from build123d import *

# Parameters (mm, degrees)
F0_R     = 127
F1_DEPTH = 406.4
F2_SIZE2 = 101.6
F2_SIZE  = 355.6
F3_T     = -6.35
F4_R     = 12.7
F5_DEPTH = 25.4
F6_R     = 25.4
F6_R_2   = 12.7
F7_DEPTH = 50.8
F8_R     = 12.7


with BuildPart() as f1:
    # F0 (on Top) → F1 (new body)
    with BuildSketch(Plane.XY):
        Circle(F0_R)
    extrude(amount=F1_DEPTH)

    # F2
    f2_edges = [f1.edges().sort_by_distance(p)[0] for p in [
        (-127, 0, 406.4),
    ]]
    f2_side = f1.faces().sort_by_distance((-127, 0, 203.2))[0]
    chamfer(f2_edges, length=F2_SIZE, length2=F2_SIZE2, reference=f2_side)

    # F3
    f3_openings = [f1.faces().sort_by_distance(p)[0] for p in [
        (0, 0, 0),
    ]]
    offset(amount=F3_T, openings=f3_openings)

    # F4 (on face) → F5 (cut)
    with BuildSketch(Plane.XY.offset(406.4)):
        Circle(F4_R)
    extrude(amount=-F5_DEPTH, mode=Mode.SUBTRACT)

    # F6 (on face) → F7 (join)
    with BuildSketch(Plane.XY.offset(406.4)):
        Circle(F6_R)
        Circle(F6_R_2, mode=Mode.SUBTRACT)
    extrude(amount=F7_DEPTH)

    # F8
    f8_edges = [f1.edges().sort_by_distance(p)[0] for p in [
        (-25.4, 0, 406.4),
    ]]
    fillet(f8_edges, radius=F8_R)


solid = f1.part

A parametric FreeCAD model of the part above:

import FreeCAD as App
import Part
import Sketcher

V = App.Vector
Q = App.Units.Quantity


def edges_at(feature, points):
    """Names of the edges that pass closest to the given points."""
    edges = feature.Shape.Edges
    near = lambda p: min(range(len(edges)), key=lambda i: edges[i].distToShape(Part.Vertex(*p))[0])
    return sorted({f"Edge{near(p) + 1}" for p in points})


def faces_at(feature, points):
    """Names of the faces that lie closest to the given points."""
    faces = feature.Shape.Faces
    near = lambda p: min(range(len(faces)), key=lambda i: faces[i].distToShape(Part.Vertex(*p))[0])
    return sorted({f"Face{near(p) + 1}" for p in points})

doc = App.newDocument("Part")
body = doc.addObject("PartDesign::Body", "Body")

# Sketch on XY plane
sketch1 = body.newObject("Sketcher::SketchObject", "Sketch")
sketch1.AttachmentSupport = (doc.getObject("XY_Plane"), [""])
sketch1.MapMode = "FlatFace"
sketch1.addGeometry(Part.Circle(V(0, 0, 0), V(0, 0, 1), 127), False)
sketch1.addConstraint(Sketcher.Constraint("Coincident", 0, 3, -1, 1))
sketch1.addConstraint(Sketcher.Constraint("Diameter", 0, Q("10 in")))
pad1 = body.newObject("PartDesign::Pad", "Pad")
pad1.Profile = sketch1
pad1.Length = Q("16 in")
doc.recompute()

chamfer = body.newObject("PartDesign::Chamfer", "Chamfer")
chamfer.Base = (pad1, edges_at(pad1, [(-127, 0, 406.4)]))
chamfer.ChamferType = "Two distances"
chamfer.Size = Q("14 in")
chamfer.Size2 = Q("4 in")
doc.recompute()

thickness = body.newObject("PartDesign::Thickness", "Thickness")
thickness.Base = (chamfer, faces_at(chamfer, [(0, 0, 0)]))
thickness.Value = Q("0.25 in")
thickness.Reversed = True
thickness.Join = "Arc"

# Sketch on XY plane
sketch2 = body.newObject("Sketcher::SketchObject", "Sketch001")
sketch2.AttachmentSupport = (doc.getObject("XY_Plane"), [""])
sketch2.MapMode = "FlatFace"
sketch2.AttachmentOffset = App.Placement(V(0, 0, 16 * 25.4), App.Rotation())
sketch2.addGeometry(Part.Circle(V(0, 0, 0), V(0, 0, 1), 13), False)
sketch2.addConstraint(Sketcher.Constraint("Coincident", 0, 3, -1, 1))
sketch2.addConstraint(Sketcher.Constraint("Diameter", 0, Q("1 in")))
pocket1 = body.newObject("PartDesign::Pocket", "Pocket")
pocket1.Profile = sketch2
pocket1.Length = Q("1 in")

# Sketch on XY plane
sketch3 = body.newObject("Sketcher::SketchObject", "Sketch002")
sketch3.AttachmentSupport = (doc.getObject("XY_Plane"), [""])
sketch3.MapMode = "FlatFace"
sketch3.AttachmentOffset = App.Placement(V(0, 0, 16 * 25.4), App.Rotation())
sketch3.addGeometry(Part.Circle(V(0, 0, 0), V(0, 0, 1), 25), False)
sketch3.addGeometry(Part.Circle(V(0, 0, 0), V(0, 0, 1), 13), False)
sketch3.addConstraint(Sketcher.Constraint("Coincident", 0, 3, -1, 1))
sketch3.addConstraint(Sketcher.Constraint("Coincident", 1, 3, -1, 1))
sketch3.addConstraint(Sketcher.Constraint("Diameter", 0, Q("2 in")))
sketch3.addConstraint(Sketcher.Constraint("Diameter", 1, Q("1 in")))
pad2 = body.newObject("PartDesign::Pad", "Pad001")
pad2.Profile = sketch3
pad2.Length = Q("2 in")
doc.recompute()

fillet = body.newObject("PartDesign::Fillet", "Fillet")
fillet.Base = (pad2, edges_at(pad2, [(-25.4, 0, 406.4)]))
fillet.Radius = Q("0.5 in")

doc.recompute()
